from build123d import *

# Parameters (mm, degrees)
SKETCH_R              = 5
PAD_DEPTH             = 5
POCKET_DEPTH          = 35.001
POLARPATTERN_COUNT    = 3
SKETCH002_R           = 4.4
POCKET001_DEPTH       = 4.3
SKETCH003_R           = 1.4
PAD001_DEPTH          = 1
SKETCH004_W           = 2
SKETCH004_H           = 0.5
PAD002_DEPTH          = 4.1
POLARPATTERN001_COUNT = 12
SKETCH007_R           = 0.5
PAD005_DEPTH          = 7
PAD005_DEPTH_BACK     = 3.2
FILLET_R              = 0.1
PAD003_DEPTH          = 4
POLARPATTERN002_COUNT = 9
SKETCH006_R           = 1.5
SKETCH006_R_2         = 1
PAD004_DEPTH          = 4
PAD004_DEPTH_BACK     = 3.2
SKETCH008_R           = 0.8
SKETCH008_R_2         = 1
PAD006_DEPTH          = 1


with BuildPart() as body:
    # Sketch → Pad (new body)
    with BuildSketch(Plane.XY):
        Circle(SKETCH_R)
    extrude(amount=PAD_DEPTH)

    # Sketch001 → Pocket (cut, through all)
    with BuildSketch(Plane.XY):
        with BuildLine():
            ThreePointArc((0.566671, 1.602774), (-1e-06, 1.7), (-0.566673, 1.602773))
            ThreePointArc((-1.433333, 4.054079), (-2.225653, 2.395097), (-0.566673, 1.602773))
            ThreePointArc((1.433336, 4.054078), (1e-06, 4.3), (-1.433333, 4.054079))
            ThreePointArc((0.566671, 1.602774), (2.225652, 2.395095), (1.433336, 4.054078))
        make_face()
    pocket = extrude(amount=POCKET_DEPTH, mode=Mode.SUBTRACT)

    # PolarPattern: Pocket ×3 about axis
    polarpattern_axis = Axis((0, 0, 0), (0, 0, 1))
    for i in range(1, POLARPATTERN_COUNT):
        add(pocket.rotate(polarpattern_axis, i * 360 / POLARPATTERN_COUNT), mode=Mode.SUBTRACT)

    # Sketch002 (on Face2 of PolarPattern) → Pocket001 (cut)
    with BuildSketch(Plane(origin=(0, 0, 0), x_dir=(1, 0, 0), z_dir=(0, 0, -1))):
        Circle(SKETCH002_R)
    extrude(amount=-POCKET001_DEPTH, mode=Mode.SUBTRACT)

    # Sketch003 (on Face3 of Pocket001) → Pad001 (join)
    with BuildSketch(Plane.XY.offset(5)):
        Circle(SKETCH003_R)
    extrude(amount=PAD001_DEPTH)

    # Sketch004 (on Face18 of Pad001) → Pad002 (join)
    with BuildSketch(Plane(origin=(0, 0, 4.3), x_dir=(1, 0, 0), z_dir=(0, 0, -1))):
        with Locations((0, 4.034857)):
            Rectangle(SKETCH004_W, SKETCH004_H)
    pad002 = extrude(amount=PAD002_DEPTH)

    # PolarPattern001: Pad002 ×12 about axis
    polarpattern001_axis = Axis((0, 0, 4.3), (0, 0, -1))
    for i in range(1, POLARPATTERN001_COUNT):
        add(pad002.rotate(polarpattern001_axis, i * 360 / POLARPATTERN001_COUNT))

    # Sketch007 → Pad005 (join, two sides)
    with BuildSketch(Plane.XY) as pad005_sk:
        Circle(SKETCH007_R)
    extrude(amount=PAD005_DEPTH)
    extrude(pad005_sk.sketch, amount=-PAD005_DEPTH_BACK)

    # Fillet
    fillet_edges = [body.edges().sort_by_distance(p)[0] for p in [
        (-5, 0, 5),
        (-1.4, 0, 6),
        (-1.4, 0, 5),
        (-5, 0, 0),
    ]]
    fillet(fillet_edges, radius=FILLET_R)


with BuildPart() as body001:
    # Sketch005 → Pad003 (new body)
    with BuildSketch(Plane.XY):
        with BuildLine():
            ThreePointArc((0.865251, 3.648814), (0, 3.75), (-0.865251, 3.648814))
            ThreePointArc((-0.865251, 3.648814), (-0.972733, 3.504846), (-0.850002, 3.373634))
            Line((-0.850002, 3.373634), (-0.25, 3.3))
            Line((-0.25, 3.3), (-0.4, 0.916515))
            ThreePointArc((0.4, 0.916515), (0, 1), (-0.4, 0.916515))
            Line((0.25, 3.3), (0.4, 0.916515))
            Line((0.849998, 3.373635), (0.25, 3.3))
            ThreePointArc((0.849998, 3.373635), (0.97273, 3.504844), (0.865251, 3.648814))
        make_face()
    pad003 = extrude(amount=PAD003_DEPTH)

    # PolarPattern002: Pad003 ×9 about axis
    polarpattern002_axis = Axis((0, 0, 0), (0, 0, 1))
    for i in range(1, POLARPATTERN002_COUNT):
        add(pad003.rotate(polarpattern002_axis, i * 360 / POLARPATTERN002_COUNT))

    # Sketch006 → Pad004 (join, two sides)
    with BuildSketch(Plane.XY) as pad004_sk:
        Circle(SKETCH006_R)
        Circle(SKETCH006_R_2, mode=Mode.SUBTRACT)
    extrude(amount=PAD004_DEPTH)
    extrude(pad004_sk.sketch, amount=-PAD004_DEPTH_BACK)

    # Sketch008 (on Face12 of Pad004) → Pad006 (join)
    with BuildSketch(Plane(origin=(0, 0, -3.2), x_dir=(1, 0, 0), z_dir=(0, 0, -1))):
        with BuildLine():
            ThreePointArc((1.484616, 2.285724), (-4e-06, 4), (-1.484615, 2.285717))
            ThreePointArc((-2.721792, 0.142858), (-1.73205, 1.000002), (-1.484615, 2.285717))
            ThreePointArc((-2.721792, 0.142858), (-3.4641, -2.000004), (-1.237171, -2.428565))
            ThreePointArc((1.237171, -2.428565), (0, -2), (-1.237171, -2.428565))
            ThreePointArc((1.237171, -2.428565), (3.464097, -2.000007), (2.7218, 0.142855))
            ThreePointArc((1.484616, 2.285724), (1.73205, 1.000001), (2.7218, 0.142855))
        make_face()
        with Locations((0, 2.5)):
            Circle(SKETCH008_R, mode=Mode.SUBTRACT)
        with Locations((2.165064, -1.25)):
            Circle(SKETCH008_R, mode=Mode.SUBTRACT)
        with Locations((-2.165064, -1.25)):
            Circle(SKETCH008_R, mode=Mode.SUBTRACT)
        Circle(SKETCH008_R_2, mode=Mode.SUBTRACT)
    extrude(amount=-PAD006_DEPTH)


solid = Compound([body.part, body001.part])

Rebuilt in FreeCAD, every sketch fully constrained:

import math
import FreeCAD as App
import Part
import Sketcher
from FreeCAD import Vector


def edges_at(feature, points):
    """Names of the edges that pass closest to the given points."""
    edges = feature.Shape.Edges
    near = lambda p: min(range(len(edges)), key=lambda i: edges[i].distToShape(Part.Vertex(*p))[0])
    return sorted({f"Edge{near(p) + 1}" for p in points})

doc = App.newDocument("Part")
body = doc.addObject("PartDesign::Body", "Body")

# Sketch on XY plane
sketch1 = doc.addObject("Sketcher::SketchObject", "Sketch")
body.addObject(sketch1)
sketch1.AttachmentSupport = (doc.XY_Plane, [""])
sketch1.MapMode = "FlatFace"
sketch1.addGeometry(Part.Circle(Vector(0, 0, 0), Vector(0, 0, 1), 5), False)
sketch1.addConstraint(Sketcher.Constraint("Coincident", 0, 3, -1, 1))
sketch1.addConstraint(Sketcher.Constraint("Diameter", 0, 10.0))
pad1 = doc.addObject("PartDesign::Pad", "Pad")
body.addObject(pad1)
pad1.Profile = sketch1
pad1.Length = 5

# Sketch on XY plane
sketch2 = doc.addObject("Sketcher::SketchObject", "Sketch001")
body.addObject(sketch2)
sketch2.AttachmentSupport = (doc.XY_Plane, [""])
sketch2.MapMode = "FlatFace"
sketch2.addGeometry(Part.ArcOfCircle(Part.Circle(Vector(0, 0, 0), Vector(0, 0, 1), 1.7), math.radians(71), math.radians(109)), False)
sketch2.addGeometry(Part.ArcOfCircle(Part.Circle(Vector(1, 2.8, 0), Vector(0, 0, 1), 1.3), math.radians(-109), math.radians(71)), False)
sketch2.addGeometry(Part.ArcOfCircle(Part.Circle(Vector(0, 0, 0), Vector(0, 0, 1), 4.3), math.radians(71), math.radians(109)), False)
sketch2.addGeometry(Part.ArcOfCircle(Part.Circle(Vector(-1, 2.8, 0), Vector(0, 0, 1), 1.3), math.radians(109), math.radians(289)), False)
sketch2.addConstraint(Sketcher.Constraint("Coincident", 0, 1, 1, 1))
sketch2.addConstraint(Sketcher.Constraint("Tangent", 1, 2, 2, 1))
sketch2.addConstraint(Sketcher.Constraint("Tangent", 2, 2, 3, 1))
sketch2.addConstraint(Sketcher.Constraint("Coincident", 3, 2, 0, 2))
sketch2.addConstraint(Sketcher.Constraint("Coincident", 0, 3, -1, 1))
sketch2.addConstraint(Sketcher.Constraint("Coincident", 2, 3, -1, 1))
sketch2.addConstraint(Sketcher.Constraint("Horizontal", 1, 3, 3, 3))
sketch2.addConstraint(Sketcher.Constraint("Horizontal", 0, 1, 3, 2))
sketch2.addConstraint(Sketcher.Constraint("Radius", 0, 1.7))
sketch2.addConstraint(Sketcher.Constraint("Radius", 1, 1.3))
sketch2.addConstraint(Sketcher.Constraint("DistanceX", -1, 1, 1, 3, 1.0))
sketch2.addConstraint(Sketcher.Constraint("DistanceX", -1, 1, 0, 1, 0.566671))
pocket1 = doc.addObject("PartDesign::Pocket", "Pocket")
body.addObject(pocket1)
pocket1.Profile = sketch2
pocket1.Type = "ThroughAll"
pocket1.Reversed = True
doc.recompute()

polarpattern = doc.addObject("PartDesign::PolarPattern", "PolarPattern")
body.addObject(polarpattern)
polarpattern.Originals = [pocket1]
polarpattern.Axis = (doc.Z_Axis, [""])
polarpattern.Angle = 360
polarpattern.Occurrences = 3
body.Tip = polarpattern

# Sketch on XY plane
sketch3 = doc.addObject("Sketcher::SketchObject", "Sketch002")
body.addObject(sketch3)
sketch3.AttachmentSupport = (doc.XY_Plane, [""])
sketch3.MapMode = "FlatFace"
sketch3.addGeometry(Part.Circle(Vector(0, 0, 0), Vector(0, 0, 1), 4.4), False)
sketch3.addConstraint(Sketcher.Constraint("Coincident", 0, 3, -1, 1))
sketch3.addConstraint(Sketcher.Constraint("Diameter", 0, 8.8))
pocket2 = doc.addObject("PartDesign::Pocket", "Pocket001")
body.addObject(pocket2)
pocket2.Profile = sketch3
pocket2.Length = 4.3
pocket2.Reversed = True

# Sketch on XY plane
sketch4 = doc.addObject("Sketcher::SketchObject", "Sketch003")
body.addObject(sketch4)
sketch4.AttachmentSupport = (doc.XY_Plane, [""])
sketch4.MapMode = "FlatFace"
sketch4.AttachmentOffset = App.Placement(Vector(0, 0, 5), App.Rotation())
sketch4.addGeometry(Part.Circle(Vector(0, 0, 0), Vector(0, 0, 1), 1.4), False)
sketch4.addConstraint(Sketcher.Constraint("Coincident", 0, 3, -1, 1))
sketch4.addConstraint(Sketcher.Constraint("Diameter", 0, 2.8))
pad2 = doc.addObject("PartDesign::Pad", "Pad001")
body.addObject(pad2)
pad2.Profile = sketch4
pad2.Length = 1

# Sketch on XY plane
sketch5 = doc.addObject("Sketcher::SketchObject", "Sketch004")
body.addObject(sketch5)
sketch5.AttachmentSupport = (doc.XY_Plane, [""])
sketch5.MapMode = "FlatFace"
sketch5.AttachmentOffset = App.Placement(Vector(0, 0, 4.3), App.Rotation())
sketch5.addGeometry(Part.LineSegment(Vector(-1, -4.28, 0), Vector(-1, -3.78, 0)), False)
sketch5.addGeometry(Part.LineSegment(Vector(-1, -3.78, 0), Vector(1, -3.78, 0)), False)
sketch5.addGeometry(Part.LineSegment(Vector(1, -3.78, 0), Vector(1, -4.28, 0)), False)
sketch5.addGeometry(Part.LineSegment(Vector(1, -4.28, 0), Vector(-1, -4.28, 0)), False)
sketch5.addConstraint(Sketcher.Constraint("Coincident", 0, 2, 1, 1))
sketch5.addConstraint(Sketcher.Constraint("Coincident", 1, 2, 2, 1))
sketch5.addConstraint(Sketcher.Constraint("Coincident", 2, 2, 3, 1))
sketch5.addConstraint(Sketcher.Constraint("Coincident", 3, 2, 0, 1))
sketch5.addConstraint(Sketcher.Constraint("Vertical", 0))
sketch5.addConstraint(Sketcher.Constraint("Horizontal", 1))
sketch5.addConstraint(Sketcher.Constraint("Vertical", 2))
sketch5.addConstraint(Sketcher.Constraint("Horizontal", 3))
sketch5.addConstraint(Sketcher.Constraint("DistanceX", 1, 1, 1, 2, 2.0))
sketch5.addConstraint(Sketcher.Constraint("DistanceY", 0, 1, 0, 2, 0.5))
sketch5.addConstraint(Sketcher.Constraint("DistanceX", 0, 2, -1, 1, 1.0))
sketch5.addConstraint(Sketcher.Constraint("DistanceY", 0, 2, -1, 1, 3.784857))
pad3 = doc.addObject("PartDesign::Pad", "Pad002")
body.addObject(pad3)
pad3.Profile = sketch5
pad3.Length = 4.1
pad3.Reversed = True
doc.recompute()

polarpattern2 = doc.addObject("PartDesign::PolarPattern", "PolarPattern001")
body.addObject(polarpattern2)
polarpattern2.Originals = [pad3]
polarpattern2.Axis = (doc.Z_Axis, [""])
polarpattern2.Angle = 360
polarpattern2.Occurrences = 12
body.Tip = polarpattern2

# Sketch on XY plane
sketch6 = doc.addObject("Sketcher::SketchObject", "Sketch005")
body.addObject(sketch6)
sketch6.AttachmentSupport = (doc.XY_Plane, [""])
sketch6.MapMode = "FlatFace"
sketch6.addGeometry(Part.Circle(Vector(0, 0, 0), Vector(0, 0, 1), 0.5), False)
sketch6.addConstraint(Sketcher.Constraint("Coincident", 0, 3, -1, 1))
sketch6.addConstraint(Sketcher.Constraint("Diameter", 0, 1.0))
pad4 = doc.addObject("PartDesign::Pad", "Pad003")
body.addObject(pad4)
pad4.Profile = sketch6
pad4.Type = "TwoLengths"
pad4.Length = 7
pad4.Length2 = 3.2
doc.recompute()

fillet = doc.addObject("PartDesign::Fillet", "Fillet")
body.addObject(fillet)
fillet.Base = (pad4, edges_at(pad4, [
    (-5, 0, 5),
    (-1.4, 0, 6),
    (-1.4, 0, 5),
    (-5, 0, 0),
]))
fillet.Radius = 0.1
body2 = doc.addObject("PartDesign::Body", "Body001")

# Sketch on XY plane
sketch7 = doc.addObject("Sketcher::SketchObject", "Sketch006")
body2.addObject(sketch7)
sketch7.AttachmentSupport = (doc.getObject("XY_Plane001"), [""])
sketch7.MapMode = "FlatFace"
sketch7.addGeometry(Part.ArcOfCircle(Part.Circle(Vector(0, 0, 0), Vector(0, 0, 1), 3.75), math.radians(77), math.radians(103)), False)
sketch7.addGeometry(Part.ArcOfCircle(Part.Circle(Vector(-0.83, 3.51, 0), Vector(0, 0, 1), 0.14), math.radians(103), math.radians(263)), False)
sketch7.addGeometry(Part.LineSegment(Vector(-0.85, 3.37, 0), Vector(-0.25, 3.3, 0)), False)
sketch7.addGeometry(Part.LineSegment(Vector(-0.25, 3.3, 0), Vector(-0.4, 0.92, 0)), False)
sketch7.addGeometry(Part.ArcOfCircle(Part.Circle(Vector(0, 0, 0), Vector(0, 0, 1), 1), math.radians(66), math.radians(114)), False)
sketch7.addGeometry(Part.LineSegment(Vector(0.4, 0.92, 0), Vector(0.25, 3.3, 0)), False)
sketch7.addGeometry(Part.LineSegment(Vector(0.25, 3.3, 0), Vector(0.85, 3.37, 0)), False)
sketch7.addGeometry(Part.ArcOfCircle(Part.Circle(Vector(0.83, 3.51, 0), Vector(0, 0, 1), 0.14), math.radians(-83), math.radians(77)), False)
sketch7.addConstraint(Sketcher.Constraint("Coincident", 0, 2, 1, 1))
sketch7.addConstraint(Sketcher.Constraint("Coincident", 1, 2, 2, 1))
sketch7.addConstraint(Sketcher.Constraint("Coincident", 2, 2, 3, 1))
sketch7.addConstraint(Sketcher.Constraint("Coincident", 3, 2, 4, 2))
sketch7.addConstraint(Sketcher.Constraint("Coincident", 4, 1, 5, 1))
sketch7.addConstraint(Sketcher.Constraint("Coincident", 5, 2, 6, 1))
sketch7.addConstraint(Sketcher.Constraint("Tangent", 6, 2, 7, 1))
sketch7.addConstraint(Sketcher.Constraint("Coincident", 7, 2, 0, 1))
sketch7.addConstraint(Sketcher.Constraint("Coincident", 4, 3, -1, 1))
sketch7.addConstraint(Sketcher.Constraint("Equal", 1, 7))
sketch7.addConstraint(Sketcher.Constraint("Symmetric", 1, 3, 7, 3, -2))
sketch7.addConstraint(Sketcher.Constraint("Symmetric", 2, 2, 5, 2, -2))
sketch7.addConstraint(Sketcher.Constraint("Horizontal", 3, 2, 4, 1))
sketch7.addConstraint(Sketcher.Constraint("Horizontal", 1, 2, 6, 2))
sketch7.addConstraint(Sketcher.Constraint("Horizontal", 0, 2, 7, 2))
sketch7.addConstraint(Sketcher.Constraint("Radius", 4, 0.999998))
sketch7.addConstraint(Sketcher.Constraint("Radius", 1, 0.14))
sketch7.addConstraint(Sketcher.Constraint("DistanceY", -1, 1, 2, 2, 3.3))
sketch7.addConstraint(Sketcher.Constraint("DistanceX", 3, 2, -1, 1, 0.4))
sketch7.addConstraint(Sketcher.Constraint("DistanceX", 2, 2, 5, 2, 0.5))
sketch7.addConstraint(Sketcher.Constraint("DistanceX", 5, 2, 6, 2, 0.599998))
sketch7.addConstraint(Sketcher.Constraint("Radius", 0, 3.750014))
sketch7.addConstraint(Sketcher.Constraint("Distance", 6, 0.6045))
sketch7.addConstraint(Sketcher.Constraint("DistanceX", 1, 3, 7, 2, 1.698198))
pad5 = doc.addObject("PartDesign::Pad", "Pad004")
body2.addObject(pad5)
pad5.Profile = sketch7
pad5.Length = 4
doc.recompute()

polarpattern3 = doc.addObject("PartDesign::PolarPattern", "PolarPattern002")
body2.addObject(polarpattern3)
polarpattern3.Originals = [pad5]
polarpattern3.Axis = (doc.getObject("Z_Axis001"), [""])
polarpattern3.Angle = 360
polarpattern3.Occurrences = 9
body2.Tip = polarpattern3

# Sketch on XY plane
sketch8 = doc.addObject("Sketcher::SketchObject", "Sketch007")
body2.addObject(sketch8)
sketch8.AttachmentSupport = (doc.getObject("XY_Plane001"), [""])
sketch8.MapMode = "FlatFace"
sketch8.addGeometry(Part.Circle(Vector(0, 0, 0), Vector(0, 0, 1), 1.5), False)
sketch8.addGeometry(Part.Circle(Vector(0, 0, 0), Vector(0, 0, 1), 1), False)
sketch8.addConstraint(Sketcher.Constraint("Coincident", 0, 3, -1, 1))
sketch8.addConstraint(Sketcher.Constraint("Coincident", 1, 3, -1, 1))
sketch8.addConstraint(Sketcher.Constraint("Diameter", 0, 3.0))
sketch8.addConstraint(Sketcher.Constraint("Diameter", 1, 2.0))
pad6 = doc.addObject("PartDesign::Pad", "Pad005")
body2.addObject(pad6)
pad6.Profile = sketch8
pad6.Type = "TwoLengths"
pad6.Length = 4
pad6.Length2 = 3.2

# Sketch on XY plane
sketch9 = doc.addObject("Sketcher::SketchObject", "Sketch008")
body2.addObject(sketch9)
sketch9.AttachmentSupport = (doc.getObject("XY_Plane001"), [""])
sketch9.MapMode = "FlatFace"
sketch9.AttachmentOffset = App.Placement(Vector(0, 0, -3.2), App.Rotation())
sketch9.addGeometry(Part.ArcOfCircle(Part.Circle(Vector(0, -2.5, 0), Vector(0, 0, 1), 1.5), math.radians(172), math.radians(368)), False)
sketch9.addGeometry(Part.ArcOfCircle(Part.Circle(Vector(-3.5, -2, 0), Vector(0, 0, 1), 2), math.radians(-8), math.radians(68)), False)
sketch9.addGeometry(Part.ArcOfCircle(Part.Circle(Vector(-2.2, 1.3, 0), Vector(0, 0, 1), 1.5), math.radians(52), math.radians(248)), False)
sketch9.addGeometry(Part.ArcOfCircle(Part.Circle(Vector(0, 4, 0), Vector(0, 0, 1), 2), math.radians(-128), math.radians(-52)), False)
sketch9.addGeometry(Part.ArcOfCircle(Part.Circle(Vector(2.2, 1.2, 0), Vector(0, 0, 1), 1.5), math.radians(-68), math.radians(128)), False)
sketch9.addGeometry(Part.ArcOfCircle(Part.Circle(Vector(3.5, -2, 0), Vector(0, 0, 1), 2), math.radians(112), math.radians(188)), False)
sketch9.addGeometry(Part.Circle(Vector(-2.2, 1.2, 0), Vector(0, 0, 1), 0.8), False)
sketch9.addGeometry(Part.Circle(Vector(2.2, 1.2, 0), Vector(0, 0, 1), 0.8), False)
sketch9.addGeometry(Part.Circle(Vector(0, 0, 0), Vector(0, 0, 1), 1), False)
sketch9.addGeometry(Part.Circle(Vector(0, -2.5, 0), Vector(0, 0, 1), 0.8), False)
sketch9.addConstraint(Sketcher.Constraint("Coincident", 0, 1, 1, 1))
sketch9.addConstraint(Sketcher.Constraint("Coincident", 1, 2, 2, 2))
sketch9.addConstraint(Sketcher.Constraint("Coincident", 2, 1, 3, 1))
sketch9.addConstraint(Sketcher.Constraint("Coincident", 3, 2, 4, 2))
sketch9.addConstraint(Sketcher.Constraint("Coincident", 4, 1, 5, 1))
sketch9.addConstraint(Sketcher.Constraint("Coincident", 5, 2, 0, 2))
sketch9.addConstraint(Sketcher.Constraint("Coincident", 8, 3, -1, 1))
sketch9.addConstraint(Sketcher.Constraint("Coincident", 6, 3, 2, 3))
sketch9.addConstraint(Sketcher.Constraint("Coincident", 7, 3, 4, 3))
sketch9.addConstraint(Sketcher.Constraint("Coincident", 9, 3, 0, 3))
sketch9.addConstraint(Sketcher.Constraint("Equal", 0, 2))
sketch9.addConstraint(Sketcher.Constraint("Equal", 1, 3))
sketch9.addConstraint(Sketcher.Constraint("Equal", 2, 4))
sketch9.addConstraint(Sketcher.Constraint("Equal", 3, 5))
sketch9.addConstraint(Sketcher.Constraint("Equal", 6, 7))
sketch9.addConstraint(Sketcher.Constraint("Equal", 7, 9))
sketch9.addConstraint(Sketcher.Constraint("Symmetric", 2, 3, 4, 3, -2))
sketch9.addConstraint(Sketcher.Constraint("Symmetric", 0, 1, 5, 2, -2))
sketch9.addConstraint(Sketcher.Constraint("Horizontal", 2, 1, 3, 2))
sketch9.addConstraint(Sketcher.Constraint("Diameter", 8, 2.0))
sketch9.addConstraint(Sketcher.Constraint("Radius", 1, 2.000002))
sketch9.addConstraint(Sketcher.Constraint("Diameter", 6, 1.6))
sketch9.addConstraint(Sketcher.Constraint("Radius", 0, 1.5))
sketch9.addConstraint(Sketcher.Constraint("DistanceY", 1, 3, -1, 1, 2.000001))
sketch9.addConstraint(Sketcher.Constraint("DistanceY", -1, 1, 3, 3, 4.0))
sketch9.addConstraint(Sketcher.Constraint("DistanceY", 0, 3, -1, 1, 2.5))
sketch9.addConstraint(Sketcher.Constraint("DistanceX", -1, 1, 4, 1, 2.7218))
sketch9.addConstraint(Sketcher.Constraint("DistanceX", 1, 2, -1, 1, 2.721792))
sketch9.addConstraint(Sketcher.Constraint("DistanceX", 2, 1, -1, 1, 1.237171))
sketch9.addConstraint(Sketcher.Constraint("DistanceX", 1, 3, 0, 1, 1.979488))
pad7 = doc.addObject("PartDesign::Pad", "Pad006")
body2.addObject(pad7)
pad7.Profile = sketch9
pad7.Length = 1

doc.recompute()
